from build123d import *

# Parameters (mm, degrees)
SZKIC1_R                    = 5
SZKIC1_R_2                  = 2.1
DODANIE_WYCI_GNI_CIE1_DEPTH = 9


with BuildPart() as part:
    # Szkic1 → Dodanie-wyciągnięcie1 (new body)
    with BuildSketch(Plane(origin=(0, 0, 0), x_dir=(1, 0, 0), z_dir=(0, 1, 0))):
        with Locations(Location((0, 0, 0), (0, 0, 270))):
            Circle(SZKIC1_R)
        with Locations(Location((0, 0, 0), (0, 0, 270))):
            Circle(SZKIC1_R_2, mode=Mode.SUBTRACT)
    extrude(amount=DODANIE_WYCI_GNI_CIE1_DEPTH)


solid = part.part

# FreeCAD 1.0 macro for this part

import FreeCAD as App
import Part
import Sketcher
from FreeCAD import Vector

doc = App.newDocument("Part")
body = doc.addObject("PartDesign::Body", "Body")

sketch1 = body.newObject("Sketcher::SketchObject", "Sketch")
sketch1.AttachmentSupport = (doc.getObject("XZ_Plane"), [""])
sketch1.MapMode = "FlatFace"
sketch1.addGeometry([
    Part.Circle(Vector(0, 0, 0), Vector(0, 0, 1), 5),
    Part.Circle(Vector(0, 0, 0), Vector(0, 0, 1), 2.1),
], False)
sketch1.addConstraint([
    Sketcher.Constraint("Coincident", 0, 3, -1, 1),
    Sketcher.Constraint("Coincident", 1, 3, -1, 1),
    Sketcher.Constraint("Diameter", 0, 10.0),
    Sketcher.Constraint("Diameter", 1, 4.2),
])
pad1 = body.newObject("PartDesign::Pad", "Pad")
pad1.Profile = sketch1
pad1.Length = 9
pad1.Reversed = True

doc.recompute()
